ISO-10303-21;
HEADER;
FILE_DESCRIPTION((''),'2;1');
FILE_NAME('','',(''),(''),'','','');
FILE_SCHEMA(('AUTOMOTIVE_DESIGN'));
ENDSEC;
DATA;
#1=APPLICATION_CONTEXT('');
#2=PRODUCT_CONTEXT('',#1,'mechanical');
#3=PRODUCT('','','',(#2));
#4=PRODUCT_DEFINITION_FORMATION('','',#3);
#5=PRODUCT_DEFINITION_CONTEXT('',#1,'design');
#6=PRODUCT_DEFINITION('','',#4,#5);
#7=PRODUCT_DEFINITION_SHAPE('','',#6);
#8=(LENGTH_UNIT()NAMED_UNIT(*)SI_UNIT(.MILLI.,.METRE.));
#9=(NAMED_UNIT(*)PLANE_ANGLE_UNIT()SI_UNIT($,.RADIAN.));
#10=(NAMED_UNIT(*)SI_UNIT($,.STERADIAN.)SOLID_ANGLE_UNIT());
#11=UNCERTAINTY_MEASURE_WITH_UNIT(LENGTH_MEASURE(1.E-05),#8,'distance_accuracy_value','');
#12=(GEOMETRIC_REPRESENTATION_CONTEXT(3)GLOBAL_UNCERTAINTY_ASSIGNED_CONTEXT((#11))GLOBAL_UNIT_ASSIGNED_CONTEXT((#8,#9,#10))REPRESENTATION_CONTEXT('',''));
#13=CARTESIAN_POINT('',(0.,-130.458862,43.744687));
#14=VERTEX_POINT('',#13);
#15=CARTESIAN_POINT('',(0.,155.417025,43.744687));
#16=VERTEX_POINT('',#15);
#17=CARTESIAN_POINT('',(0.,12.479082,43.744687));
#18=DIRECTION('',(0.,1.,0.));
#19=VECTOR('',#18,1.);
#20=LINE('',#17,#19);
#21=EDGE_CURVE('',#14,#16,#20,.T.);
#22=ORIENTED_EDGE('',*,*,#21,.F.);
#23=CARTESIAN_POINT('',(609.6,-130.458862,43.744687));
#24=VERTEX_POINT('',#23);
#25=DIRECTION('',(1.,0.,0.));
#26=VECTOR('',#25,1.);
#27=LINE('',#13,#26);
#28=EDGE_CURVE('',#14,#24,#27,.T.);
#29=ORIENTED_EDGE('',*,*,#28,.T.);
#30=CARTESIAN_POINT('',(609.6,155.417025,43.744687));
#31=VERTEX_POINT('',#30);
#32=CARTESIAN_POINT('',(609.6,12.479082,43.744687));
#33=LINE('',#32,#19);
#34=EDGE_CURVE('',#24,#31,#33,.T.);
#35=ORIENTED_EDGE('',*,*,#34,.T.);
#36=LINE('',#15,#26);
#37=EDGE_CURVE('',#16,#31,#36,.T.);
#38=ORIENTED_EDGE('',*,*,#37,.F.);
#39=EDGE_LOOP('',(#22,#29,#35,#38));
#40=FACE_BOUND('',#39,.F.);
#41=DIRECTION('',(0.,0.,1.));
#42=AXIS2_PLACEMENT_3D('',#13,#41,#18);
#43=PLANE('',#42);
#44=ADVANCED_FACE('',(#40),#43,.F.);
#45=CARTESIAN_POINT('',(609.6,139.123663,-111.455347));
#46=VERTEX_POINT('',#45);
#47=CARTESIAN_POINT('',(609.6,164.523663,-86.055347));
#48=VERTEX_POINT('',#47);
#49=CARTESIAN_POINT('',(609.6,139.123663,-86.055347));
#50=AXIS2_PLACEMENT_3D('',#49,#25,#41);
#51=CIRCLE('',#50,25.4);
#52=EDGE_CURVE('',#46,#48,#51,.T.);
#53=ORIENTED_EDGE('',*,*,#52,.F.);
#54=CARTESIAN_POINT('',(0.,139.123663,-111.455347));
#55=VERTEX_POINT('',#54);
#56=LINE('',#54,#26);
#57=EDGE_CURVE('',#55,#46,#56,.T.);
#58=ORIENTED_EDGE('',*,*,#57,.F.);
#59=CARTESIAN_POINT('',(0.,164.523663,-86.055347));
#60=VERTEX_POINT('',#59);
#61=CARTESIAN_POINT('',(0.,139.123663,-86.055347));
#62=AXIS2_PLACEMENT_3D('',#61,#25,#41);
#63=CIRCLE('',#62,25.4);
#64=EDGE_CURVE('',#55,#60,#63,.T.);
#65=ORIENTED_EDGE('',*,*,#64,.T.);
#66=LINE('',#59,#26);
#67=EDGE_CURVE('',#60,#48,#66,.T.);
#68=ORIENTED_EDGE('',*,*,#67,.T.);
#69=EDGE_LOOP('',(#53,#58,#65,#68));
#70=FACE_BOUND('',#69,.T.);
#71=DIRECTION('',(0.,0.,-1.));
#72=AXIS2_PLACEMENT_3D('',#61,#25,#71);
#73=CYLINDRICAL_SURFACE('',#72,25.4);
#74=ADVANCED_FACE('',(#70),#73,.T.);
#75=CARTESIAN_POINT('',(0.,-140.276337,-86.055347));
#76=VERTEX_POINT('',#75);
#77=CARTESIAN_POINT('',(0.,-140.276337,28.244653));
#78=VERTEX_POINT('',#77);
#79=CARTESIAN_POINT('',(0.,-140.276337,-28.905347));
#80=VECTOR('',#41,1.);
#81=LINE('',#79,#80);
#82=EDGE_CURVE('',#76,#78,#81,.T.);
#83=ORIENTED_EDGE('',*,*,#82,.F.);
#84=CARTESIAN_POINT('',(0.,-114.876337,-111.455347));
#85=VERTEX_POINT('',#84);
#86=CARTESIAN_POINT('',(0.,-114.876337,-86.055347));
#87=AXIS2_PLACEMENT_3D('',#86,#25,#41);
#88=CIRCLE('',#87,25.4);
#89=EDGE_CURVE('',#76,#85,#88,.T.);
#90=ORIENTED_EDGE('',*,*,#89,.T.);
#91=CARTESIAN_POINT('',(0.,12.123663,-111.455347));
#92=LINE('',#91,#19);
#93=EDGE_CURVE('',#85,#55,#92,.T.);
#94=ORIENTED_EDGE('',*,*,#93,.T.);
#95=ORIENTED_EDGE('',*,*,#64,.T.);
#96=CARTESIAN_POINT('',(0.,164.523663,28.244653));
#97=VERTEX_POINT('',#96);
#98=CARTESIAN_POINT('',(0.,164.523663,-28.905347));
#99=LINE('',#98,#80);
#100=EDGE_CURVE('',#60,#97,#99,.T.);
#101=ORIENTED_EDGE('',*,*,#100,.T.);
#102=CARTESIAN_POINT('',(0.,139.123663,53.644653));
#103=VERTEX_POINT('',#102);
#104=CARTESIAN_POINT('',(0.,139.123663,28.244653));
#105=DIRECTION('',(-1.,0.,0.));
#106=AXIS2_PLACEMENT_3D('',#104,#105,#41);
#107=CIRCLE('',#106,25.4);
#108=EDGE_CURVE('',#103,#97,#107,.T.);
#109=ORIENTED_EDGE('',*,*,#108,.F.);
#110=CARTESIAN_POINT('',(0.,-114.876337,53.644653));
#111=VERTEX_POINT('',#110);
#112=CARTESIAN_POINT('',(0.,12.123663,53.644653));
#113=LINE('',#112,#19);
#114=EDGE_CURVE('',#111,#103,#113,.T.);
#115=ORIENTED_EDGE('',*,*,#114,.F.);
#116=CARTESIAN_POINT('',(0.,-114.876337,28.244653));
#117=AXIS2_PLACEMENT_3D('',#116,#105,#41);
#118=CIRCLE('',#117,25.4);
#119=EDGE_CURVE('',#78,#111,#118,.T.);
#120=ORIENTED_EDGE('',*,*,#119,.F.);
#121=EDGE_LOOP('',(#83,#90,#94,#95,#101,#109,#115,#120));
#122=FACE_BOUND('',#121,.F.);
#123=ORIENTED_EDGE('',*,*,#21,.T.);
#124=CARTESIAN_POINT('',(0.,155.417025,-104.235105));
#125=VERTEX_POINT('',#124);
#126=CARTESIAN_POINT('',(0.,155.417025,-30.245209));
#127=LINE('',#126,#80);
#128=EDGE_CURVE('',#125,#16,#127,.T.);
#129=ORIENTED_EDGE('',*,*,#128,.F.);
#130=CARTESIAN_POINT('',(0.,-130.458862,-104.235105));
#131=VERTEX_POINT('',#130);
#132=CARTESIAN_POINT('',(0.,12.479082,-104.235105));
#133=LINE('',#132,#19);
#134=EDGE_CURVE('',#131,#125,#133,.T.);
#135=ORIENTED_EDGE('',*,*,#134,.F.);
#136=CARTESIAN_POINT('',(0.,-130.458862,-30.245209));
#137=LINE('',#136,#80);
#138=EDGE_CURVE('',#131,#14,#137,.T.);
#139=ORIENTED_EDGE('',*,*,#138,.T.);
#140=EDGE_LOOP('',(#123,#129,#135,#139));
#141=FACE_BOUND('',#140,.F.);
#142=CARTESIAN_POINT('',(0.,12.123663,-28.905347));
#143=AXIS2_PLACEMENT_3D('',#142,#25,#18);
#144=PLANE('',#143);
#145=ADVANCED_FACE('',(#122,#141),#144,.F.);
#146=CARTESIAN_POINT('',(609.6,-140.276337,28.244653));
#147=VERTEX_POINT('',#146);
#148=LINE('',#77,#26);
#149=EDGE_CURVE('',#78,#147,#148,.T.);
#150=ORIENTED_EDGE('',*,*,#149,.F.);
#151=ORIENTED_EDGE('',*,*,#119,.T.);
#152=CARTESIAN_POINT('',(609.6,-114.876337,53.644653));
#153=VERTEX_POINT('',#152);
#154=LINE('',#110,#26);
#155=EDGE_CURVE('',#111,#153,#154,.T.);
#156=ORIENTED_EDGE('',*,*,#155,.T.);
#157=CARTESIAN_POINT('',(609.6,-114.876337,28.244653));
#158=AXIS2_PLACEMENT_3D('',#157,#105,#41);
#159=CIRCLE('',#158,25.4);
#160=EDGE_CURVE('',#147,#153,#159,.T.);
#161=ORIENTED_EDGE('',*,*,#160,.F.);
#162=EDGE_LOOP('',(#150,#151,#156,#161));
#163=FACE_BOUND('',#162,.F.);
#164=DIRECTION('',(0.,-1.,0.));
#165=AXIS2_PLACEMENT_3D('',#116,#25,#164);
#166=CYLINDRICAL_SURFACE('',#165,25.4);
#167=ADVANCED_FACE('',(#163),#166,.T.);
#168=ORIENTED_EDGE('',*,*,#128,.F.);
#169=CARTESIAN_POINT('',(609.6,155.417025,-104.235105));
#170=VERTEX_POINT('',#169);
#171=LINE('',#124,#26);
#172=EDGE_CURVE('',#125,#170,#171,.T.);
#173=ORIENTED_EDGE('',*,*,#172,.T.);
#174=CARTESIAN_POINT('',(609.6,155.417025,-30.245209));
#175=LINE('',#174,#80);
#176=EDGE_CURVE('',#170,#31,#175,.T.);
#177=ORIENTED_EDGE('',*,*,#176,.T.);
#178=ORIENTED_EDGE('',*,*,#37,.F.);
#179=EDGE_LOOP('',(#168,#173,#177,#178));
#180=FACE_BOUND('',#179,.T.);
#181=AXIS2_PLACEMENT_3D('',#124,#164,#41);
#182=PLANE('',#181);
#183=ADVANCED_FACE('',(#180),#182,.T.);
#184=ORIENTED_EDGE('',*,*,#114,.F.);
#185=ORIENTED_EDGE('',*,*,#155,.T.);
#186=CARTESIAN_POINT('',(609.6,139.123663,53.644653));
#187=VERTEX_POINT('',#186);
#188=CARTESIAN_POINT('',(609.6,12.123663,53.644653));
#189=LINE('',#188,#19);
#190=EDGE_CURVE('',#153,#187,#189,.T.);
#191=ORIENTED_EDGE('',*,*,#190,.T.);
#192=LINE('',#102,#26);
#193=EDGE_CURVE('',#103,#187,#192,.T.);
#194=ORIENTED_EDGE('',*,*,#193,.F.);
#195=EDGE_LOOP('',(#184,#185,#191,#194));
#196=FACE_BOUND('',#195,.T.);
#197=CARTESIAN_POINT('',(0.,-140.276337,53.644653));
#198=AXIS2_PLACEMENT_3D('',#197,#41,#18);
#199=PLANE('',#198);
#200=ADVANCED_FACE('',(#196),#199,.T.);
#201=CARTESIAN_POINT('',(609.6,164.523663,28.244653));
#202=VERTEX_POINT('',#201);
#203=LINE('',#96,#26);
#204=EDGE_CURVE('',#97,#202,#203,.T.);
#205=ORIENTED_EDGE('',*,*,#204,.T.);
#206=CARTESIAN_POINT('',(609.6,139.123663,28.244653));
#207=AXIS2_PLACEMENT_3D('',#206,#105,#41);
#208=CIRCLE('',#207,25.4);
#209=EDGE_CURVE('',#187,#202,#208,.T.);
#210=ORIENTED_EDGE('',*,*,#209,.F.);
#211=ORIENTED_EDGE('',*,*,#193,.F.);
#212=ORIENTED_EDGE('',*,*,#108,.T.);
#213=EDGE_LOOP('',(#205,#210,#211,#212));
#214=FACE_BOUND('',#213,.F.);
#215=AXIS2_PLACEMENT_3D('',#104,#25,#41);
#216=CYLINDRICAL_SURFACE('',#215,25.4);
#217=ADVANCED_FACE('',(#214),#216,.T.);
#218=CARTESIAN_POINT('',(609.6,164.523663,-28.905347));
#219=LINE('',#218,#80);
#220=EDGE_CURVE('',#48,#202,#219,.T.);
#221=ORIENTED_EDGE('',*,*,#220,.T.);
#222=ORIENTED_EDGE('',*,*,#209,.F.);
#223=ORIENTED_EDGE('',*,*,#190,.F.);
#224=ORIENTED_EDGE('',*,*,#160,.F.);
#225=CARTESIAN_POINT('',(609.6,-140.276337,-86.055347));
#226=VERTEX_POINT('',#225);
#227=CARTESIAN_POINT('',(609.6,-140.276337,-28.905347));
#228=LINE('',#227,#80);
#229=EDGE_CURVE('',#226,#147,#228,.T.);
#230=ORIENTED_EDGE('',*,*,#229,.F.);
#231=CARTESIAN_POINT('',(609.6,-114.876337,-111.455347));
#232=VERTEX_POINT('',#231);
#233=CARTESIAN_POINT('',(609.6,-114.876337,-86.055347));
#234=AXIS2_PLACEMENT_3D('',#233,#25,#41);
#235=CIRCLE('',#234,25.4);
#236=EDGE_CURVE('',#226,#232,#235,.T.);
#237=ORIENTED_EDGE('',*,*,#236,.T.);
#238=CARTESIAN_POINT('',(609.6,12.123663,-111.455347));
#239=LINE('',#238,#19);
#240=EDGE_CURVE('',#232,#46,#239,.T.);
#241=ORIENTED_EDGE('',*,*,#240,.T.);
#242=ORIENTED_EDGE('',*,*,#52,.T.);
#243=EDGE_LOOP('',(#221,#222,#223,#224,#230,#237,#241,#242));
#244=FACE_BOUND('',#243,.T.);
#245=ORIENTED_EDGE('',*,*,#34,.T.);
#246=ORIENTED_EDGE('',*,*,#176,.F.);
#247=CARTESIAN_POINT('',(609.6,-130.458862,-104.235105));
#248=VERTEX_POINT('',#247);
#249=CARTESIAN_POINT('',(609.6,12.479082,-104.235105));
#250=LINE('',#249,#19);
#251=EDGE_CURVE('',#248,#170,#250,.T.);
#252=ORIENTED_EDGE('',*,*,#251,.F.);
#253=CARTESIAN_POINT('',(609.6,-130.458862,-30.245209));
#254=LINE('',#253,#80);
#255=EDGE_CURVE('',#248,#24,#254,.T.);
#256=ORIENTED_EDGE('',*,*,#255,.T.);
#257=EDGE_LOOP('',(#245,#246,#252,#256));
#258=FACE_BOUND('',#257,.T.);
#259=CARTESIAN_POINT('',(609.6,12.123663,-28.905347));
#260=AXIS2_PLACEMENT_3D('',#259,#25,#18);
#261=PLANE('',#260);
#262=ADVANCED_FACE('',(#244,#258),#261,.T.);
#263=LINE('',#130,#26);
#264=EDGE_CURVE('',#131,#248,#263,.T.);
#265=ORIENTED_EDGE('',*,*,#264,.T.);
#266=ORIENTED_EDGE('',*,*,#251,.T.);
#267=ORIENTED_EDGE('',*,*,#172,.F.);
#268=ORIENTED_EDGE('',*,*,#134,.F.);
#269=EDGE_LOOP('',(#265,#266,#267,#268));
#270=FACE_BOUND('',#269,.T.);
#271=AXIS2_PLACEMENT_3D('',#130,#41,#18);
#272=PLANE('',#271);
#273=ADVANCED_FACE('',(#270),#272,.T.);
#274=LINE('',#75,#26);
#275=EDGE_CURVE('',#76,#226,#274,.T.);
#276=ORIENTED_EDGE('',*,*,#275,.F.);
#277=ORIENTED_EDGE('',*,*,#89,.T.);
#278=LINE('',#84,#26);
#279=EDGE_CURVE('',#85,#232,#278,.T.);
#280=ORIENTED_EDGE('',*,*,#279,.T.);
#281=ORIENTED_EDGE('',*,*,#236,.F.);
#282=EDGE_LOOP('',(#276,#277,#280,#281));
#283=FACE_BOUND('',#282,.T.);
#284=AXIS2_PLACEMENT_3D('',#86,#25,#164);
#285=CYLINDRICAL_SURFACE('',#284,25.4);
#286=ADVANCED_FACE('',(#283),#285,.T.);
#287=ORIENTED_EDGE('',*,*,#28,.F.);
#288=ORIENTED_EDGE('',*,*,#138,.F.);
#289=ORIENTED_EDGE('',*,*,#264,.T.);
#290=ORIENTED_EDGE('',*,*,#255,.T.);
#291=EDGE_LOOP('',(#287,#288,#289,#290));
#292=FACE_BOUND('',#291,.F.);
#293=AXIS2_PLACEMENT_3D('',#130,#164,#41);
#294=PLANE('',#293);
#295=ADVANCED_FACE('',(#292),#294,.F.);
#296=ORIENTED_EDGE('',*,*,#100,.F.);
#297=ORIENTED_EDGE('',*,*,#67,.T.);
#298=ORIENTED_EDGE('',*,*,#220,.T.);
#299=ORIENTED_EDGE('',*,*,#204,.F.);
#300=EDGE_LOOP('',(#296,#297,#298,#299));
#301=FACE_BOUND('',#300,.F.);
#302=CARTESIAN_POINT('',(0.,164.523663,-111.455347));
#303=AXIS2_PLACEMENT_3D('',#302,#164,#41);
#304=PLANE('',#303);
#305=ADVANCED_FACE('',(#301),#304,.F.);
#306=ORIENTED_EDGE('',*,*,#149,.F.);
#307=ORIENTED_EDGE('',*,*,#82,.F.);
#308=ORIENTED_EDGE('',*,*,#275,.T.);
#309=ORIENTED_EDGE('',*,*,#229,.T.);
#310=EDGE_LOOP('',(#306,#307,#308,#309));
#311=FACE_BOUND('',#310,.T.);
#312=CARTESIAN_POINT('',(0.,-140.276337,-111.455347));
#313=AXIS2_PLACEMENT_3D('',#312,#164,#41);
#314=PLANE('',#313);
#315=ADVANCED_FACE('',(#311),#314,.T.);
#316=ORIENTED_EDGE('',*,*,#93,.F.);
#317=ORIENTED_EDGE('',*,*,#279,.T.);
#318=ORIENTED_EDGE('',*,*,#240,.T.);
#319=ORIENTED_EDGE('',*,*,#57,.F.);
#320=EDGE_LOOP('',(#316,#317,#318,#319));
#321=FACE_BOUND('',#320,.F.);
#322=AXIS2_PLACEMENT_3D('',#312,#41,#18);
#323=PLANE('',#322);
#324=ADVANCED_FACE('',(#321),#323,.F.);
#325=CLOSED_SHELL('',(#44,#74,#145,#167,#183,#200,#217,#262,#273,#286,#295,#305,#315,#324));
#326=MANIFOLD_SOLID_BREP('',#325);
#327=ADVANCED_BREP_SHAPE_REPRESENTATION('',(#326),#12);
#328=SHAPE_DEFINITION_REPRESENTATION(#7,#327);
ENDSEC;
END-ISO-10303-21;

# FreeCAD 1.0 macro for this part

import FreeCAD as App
import Part
import Sketcher
from FreeCAD import Vector
Q = App.Units.Quantity


def edges_at(feature, points):
    """Names of the edges that pass closest to the given points."""
    edges = feature.Shape.Edges
    near = lambda p: min(range(len(edges)), key=lambda i: edges[i].distToShape(Part.Vertex(*p))[0])
    return sorted({f"Edge{near(p) + 1}" for p in points})

doc = App.newDocument("Part")
body = doc.addObject("PartDesign::Body", "Body")

sketch1 = body.newObject("Sketcher::SketchObject", "Sketch")
sketch1.AttachmentSupport = (doc.getObject("YZ_Plane"), [""])
sketch1.MapMode = "FlatFace"
sketch1.addGeometry(Part.LineSegment(Vector(-140.276337, 53.644653, 0), Vector(-140.276337, -111.455347, 0)), False)
sketch1.addGeometry(Part.LineSegment(Vector(-140.276337, -111.455347, 0), Vector(164.523663, -111.455347, 0)), False)
sketch1.addGeometry(Part.LineSegment(Vector(164.523663, -111.455347, 0), Vector(164.523663, 53.644653, 0)), False)
sketch1.addGeometry(Part.LineSegment(Vector(164.523663, 53.644653, 0), Vector(-140.276337, 53.644653, 0)), False)
sketch1.addGeometry(Part.LineSegment(Vector(155.417025, -104.235105, 0), Vector(-130.458862, -104.235105, 0)), False)
sketch1.addGeometry(Part.LineSegment(Vector(-130.458862, -104.235105, 0), Vector(-130.458862, 43.744687, 0)), False)
sketch1.addGeometry(Part.LineSegment(Vector(-130.458862, 43.744687, 0), Vector(155.417025, 43.744687, 0)), False)
sketch1.addGeometry(Part.LineSegment(Vector(155.417025, 43.744687, 0), Vector(155.417025, -104.235105, 0)), False)
sketch1.addConstraint(Sketcher.Constraint("Coincident", 0, 2, 1, 1))
sketch1.addConstraint(Sketcher.Constraint("Coincident", 1, 2, 2, 1))
sketch1.addConstraint(Sketcher.Constraint("Coincident", 2, 2, 3, 1))
sketch1.addConstraint(Sketcher.Constraint("Coincident", 3, 2, 0, 1))
sketch1.addConstraint(Sketcher.Constraint("Coincident", 4, 2, 5, 1))
sketch1.addConstraint(Sketcher.Constraint("Coincident", 5, 2, 6, 1))
sketch1.addConstraint(Sketcher.Constraint("Coincident", 6, 2, 7, 1))
sketch1.addConstraint(Sketcher.Constraint("Coincident", 7, 2, 4, 1))
sketch1.addConstraint(Sketcher.Constraint("Vertical", 0))
sketch1.addConstraint(Sketcher.Constraint("Horizontal", 1))
sketch1.addConstraint(Sketcher.Constraint("Vertical", 2))
sketch1.addConstraint(Sketcher.Constraint("Horizontal", 3))
sketch1.addConstraint(Sketcher.Constraint("Horizontal", 4))
sketch1.addConstraint(Sketcher.Constraint("Vertical", 5))
sketch1.addConstraint(Sketcher.Constraint("Horizontal", 6))
sketch1.addConstraint(Sketcher.Constraint("Vertical", 7))
sketch1.addConstraint(Sketcher.Constraint("DistanceX", 1, 1, 1, 2, Q("12 in")))
sketch1.addConstraint(Sketcher.Constraint("DistanceY", 0, 2, 0, 1, Q("6.5 in")))
sketch1.addConstraint(Sketcher.Constraint("DistanceY", 5, 1, 5, 2, 147.979792))
sketch1.addConstraint(Sketcher.Constraint("DistanceX", 4, 2, 4, 1, 285.875887))
sketch1.addConstraint(Sketcher.Constraint("DistanceX", 4, 2, -1, 1, 130.458862))
sketch1.addConstraint(Sketcher.Constraint("DistanceY", 0, 2, 4, 2, 7.220242))
sketch1.addConstraint(Sketcher.Constraint("DistanceX", 0, 2, -1, 1, 140.276337))
sketch1.addConstraint(Sketcher.Constraint("DistanceY", 0, 2, -1, 1, 111.455347))
pad1 = body.newObject("PartDesign::Pad", "Pad")
pad1.Profile = sketch1
pad1.Length = Q("24 in")
doc.recompute()

fillet = body.newObject("PartDesign::Fillet", "Fillet")
fillet.Base = (pad1, edges_at(pad1, [
    (304.8, -140.276, 53.645),
    (304.8, 164.524, 53.645),
    (304.8, -140.276, -111.455),
    (304.8, 164.524, -111.455),
]))
fillet.Radius = Q("1 in")

doc.recompute()
